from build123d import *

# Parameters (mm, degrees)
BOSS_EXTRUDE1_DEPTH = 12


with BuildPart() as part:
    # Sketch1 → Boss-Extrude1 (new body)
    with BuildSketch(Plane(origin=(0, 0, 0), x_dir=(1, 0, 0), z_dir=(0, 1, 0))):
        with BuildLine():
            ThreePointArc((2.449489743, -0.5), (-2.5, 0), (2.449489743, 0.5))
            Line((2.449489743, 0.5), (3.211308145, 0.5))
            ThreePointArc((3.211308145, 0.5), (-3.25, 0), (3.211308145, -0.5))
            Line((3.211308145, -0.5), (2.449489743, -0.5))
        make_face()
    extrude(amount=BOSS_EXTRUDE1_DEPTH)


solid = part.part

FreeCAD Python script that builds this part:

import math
import FreeCAD as App
import Part
import Sketcher
from FreeCAD import Vector

doc = App.newDocument("Part")
body = doc.addObject("PartDesign::Body", "Body")

# Sketch on XZ plane
sketch1 = body.newObject("Sketcher::SketchObject", "Sketch")
sketch1.AttachmentSupport = (doc.getObject("XZ_Plane"), [""])
sketch1.MapMode = "FlatFace"
sketch1.addGeometry(Part.ArcOfCircle(Part.Circle(Vector(0, 0, 0), Vector(0, 0, 1), 2.5), math.radians(12), math.radians(348)), False)
sketch1.addGeometry(Part.LineSegment(Vector(2.4, -0.5, 0), Vector(3.2, -0.5, 0)), False)
sketch1.addGeometry(Part.ArcOfCircle(Part.Circle(Vector(0, 0, 0), Vector(0, 0, 1), 3.2), math.radians(9), math.radians(351)), False)
sketch1.addGeometry(Part.LineSegment(Vector(3.2, 0.5, 0), Vector(2.4, 0.5, 0)), False)
sketch1.addConstraint(Sketcher.Constraint("Coincident", 0, 2, 1, 1))
sketch1.addConstraint(Sketcher.Constraint("Coincident", 1, 2, 2, 2))
sketch1.addConstraint(Sketcher.Constraint("Coincident", 2, 1, 3, 1))
sketch1.addConstraint(Sketcher.Constraint("Coincident", 3, 2, 0, 1))
sketch1.addConstraint(Sketcher.Constraint("Horizontal", 1))
sketch1.addConstraint(Sketcher.Constraint("Horizontal", 3))
sketch1.addConstraint(Sketcher.Constraint("Coincident", 0, 3, -1, 1))
sketch1.addConstraint(Sketcher.Constraint("Coincident", 2, 3, -1, 1))
sketch1.addConstraint(Sketcher.Constraint("Vertical", 1, 2, 2, 1))
sketch1.addConstraint(Sketcher.Constraint("Radius", 0, 2.5))
sketch1.addConstraint(Sketcher.Constraint("Radius", 2, 3.25))
sketch1.addConstraint(Sketcher.Constraint("DistanceY", 1, 2, 2, 1, 1.0))
pad1 = body.newObject("PartDesign::Pad", "Pad")
pad1.Profile = sketch1
pad1.Length = 12
pad1.Reversed = True

doc.recompute()
